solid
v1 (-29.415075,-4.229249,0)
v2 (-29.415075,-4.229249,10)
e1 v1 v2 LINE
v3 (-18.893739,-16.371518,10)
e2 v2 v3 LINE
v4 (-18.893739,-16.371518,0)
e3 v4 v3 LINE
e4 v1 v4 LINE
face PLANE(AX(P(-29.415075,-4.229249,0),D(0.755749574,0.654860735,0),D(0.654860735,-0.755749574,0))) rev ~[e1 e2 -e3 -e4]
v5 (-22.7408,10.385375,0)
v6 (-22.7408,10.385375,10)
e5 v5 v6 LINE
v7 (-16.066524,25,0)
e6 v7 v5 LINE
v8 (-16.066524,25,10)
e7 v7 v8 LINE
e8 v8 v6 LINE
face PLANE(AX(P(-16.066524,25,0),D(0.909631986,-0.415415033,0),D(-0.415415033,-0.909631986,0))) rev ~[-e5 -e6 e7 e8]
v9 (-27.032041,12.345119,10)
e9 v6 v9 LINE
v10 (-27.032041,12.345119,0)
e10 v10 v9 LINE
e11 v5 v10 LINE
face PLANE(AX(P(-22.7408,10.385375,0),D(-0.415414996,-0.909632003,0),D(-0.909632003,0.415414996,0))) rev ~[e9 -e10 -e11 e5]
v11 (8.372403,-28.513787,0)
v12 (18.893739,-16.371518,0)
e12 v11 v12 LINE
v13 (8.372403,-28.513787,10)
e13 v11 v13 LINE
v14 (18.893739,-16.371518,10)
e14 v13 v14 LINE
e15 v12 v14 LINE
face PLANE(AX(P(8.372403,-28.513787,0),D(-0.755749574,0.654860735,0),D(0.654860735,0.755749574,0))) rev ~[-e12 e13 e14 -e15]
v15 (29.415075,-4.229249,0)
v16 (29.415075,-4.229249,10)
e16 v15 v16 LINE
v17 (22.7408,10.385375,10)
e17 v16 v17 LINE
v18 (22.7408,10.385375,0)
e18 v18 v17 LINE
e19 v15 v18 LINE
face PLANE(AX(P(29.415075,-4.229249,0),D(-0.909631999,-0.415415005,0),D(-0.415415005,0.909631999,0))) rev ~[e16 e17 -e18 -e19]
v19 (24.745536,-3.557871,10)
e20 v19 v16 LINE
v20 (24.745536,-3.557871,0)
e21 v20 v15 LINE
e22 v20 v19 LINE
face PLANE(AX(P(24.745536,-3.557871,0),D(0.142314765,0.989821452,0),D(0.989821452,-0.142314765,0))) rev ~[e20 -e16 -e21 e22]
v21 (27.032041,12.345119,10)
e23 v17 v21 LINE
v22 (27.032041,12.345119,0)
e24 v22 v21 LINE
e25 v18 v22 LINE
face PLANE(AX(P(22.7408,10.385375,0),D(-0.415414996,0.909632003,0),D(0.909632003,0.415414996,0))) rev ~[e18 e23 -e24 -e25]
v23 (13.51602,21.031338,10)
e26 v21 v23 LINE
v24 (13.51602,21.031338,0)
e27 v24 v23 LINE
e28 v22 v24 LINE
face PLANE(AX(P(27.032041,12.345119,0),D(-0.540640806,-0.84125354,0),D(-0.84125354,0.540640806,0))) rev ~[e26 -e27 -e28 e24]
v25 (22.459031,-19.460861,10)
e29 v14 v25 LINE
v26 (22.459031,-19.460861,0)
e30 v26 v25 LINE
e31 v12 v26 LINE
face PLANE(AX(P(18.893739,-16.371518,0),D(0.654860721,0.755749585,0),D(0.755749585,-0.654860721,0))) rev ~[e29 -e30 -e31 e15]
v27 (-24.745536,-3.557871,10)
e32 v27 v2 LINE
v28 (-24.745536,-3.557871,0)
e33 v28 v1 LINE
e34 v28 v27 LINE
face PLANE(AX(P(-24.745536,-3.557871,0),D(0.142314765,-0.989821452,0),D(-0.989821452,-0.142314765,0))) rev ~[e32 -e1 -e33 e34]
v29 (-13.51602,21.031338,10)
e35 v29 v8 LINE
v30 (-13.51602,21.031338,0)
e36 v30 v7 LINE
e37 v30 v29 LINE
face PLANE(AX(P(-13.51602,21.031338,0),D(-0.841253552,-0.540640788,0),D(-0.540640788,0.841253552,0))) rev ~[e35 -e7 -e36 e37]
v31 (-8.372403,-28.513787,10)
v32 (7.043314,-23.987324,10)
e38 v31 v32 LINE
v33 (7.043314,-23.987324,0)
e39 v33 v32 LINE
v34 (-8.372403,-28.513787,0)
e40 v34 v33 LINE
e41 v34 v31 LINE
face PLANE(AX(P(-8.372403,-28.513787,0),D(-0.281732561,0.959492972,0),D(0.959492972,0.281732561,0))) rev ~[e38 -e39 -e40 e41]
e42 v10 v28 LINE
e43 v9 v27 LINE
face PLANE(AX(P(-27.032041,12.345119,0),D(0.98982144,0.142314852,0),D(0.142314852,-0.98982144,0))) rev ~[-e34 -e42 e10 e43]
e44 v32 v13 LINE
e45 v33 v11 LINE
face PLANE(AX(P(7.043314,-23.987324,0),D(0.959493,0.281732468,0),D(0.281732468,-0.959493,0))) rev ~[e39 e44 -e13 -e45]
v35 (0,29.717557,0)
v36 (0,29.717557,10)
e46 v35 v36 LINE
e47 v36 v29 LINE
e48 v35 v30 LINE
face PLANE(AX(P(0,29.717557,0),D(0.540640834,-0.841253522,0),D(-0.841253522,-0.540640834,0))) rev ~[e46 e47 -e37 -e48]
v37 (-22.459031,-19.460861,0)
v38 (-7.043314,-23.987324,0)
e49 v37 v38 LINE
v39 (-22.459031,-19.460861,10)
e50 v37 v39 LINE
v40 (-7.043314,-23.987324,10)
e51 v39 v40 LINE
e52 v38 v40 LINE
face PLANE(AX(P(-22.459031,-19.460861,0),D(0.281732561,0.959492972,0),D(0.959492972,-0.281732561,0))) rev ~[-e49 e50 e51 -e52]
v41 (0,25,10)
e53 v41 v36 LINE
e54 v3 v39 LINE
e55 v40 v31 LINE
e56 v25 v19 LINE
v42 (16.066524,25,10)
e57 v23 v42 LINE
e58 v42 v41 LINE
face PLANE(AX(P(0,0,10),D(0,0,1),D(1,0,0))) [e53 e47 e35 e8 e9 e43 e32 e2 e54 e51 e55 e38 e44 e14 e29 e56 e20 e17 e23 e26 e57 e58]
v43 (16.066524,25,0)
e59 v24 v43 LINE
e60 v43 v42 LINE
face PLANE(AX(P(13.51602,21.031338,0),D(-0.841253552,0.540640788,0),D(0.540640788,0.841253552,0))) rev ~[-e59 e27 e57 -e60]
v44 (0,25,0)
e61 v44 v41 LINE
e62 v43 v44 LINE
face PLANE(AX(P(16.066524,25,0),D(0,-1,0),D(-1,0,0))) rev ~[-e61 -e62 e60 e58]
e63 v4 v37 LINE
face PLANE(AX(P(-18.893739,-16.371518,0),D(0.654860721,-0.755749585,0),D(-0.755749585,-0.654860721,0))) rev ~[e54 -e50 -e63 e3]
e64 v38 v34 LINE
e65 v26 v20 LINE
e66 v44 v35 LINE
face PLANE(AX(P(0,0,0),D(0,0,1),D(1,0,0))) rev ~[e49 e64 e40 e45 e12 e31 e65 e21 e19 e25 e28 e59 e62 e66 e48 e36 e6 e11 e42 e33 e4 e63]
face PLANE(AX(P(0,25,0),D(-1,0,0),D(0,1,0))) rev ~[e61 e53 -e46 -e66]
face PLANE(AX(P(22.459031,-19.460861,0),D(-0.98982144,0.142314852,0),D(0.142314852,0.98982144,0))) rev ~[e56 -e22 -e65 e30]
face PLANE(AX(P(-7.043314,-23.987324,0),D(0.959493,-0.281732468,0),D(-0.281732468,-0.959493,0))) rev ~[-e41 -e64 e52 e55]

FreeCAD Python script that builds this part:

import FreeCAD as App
import Part
import Sketcher
from FreeCAD import Vector


def add_polygon(sketch, points):
    """Adds a closed chain of lines whose ends are joined by coincident constraints."""
    first, n = sketch.GeometryCount, len(points)
    for a, b in zip(points, points[1:] + points[:1]):
        sketch.addGeometry(Part.LineSegment(App.Vector(*a, 0), App.Vector(*b, 0)), False)
    for i in range(n):
        sketch.addConstraint(Sketcher.Constraint("Coincident", first + i, 2, first + (i + 1) % n, 1))

doc = App.newDocument("Part")
params = doc.addObject("Spreadsheet::Sheet", "Params")
for row, (alias, value) in enumerate([
    ("pad1_length", "10 mm"),
], start=1):
    params.set(f"A{row}", alias)
    params.set(f"B{row}", "=" + value)
    params.setAlias(f"B{row}", alias)

body = doc.addObject("PartDesign::Body", "Body")

sketch1 = doc.addObject("Sketcher::SketchObject", "Sketch")
body.addObject(sketch1)
sketch1.AttachmentSupport = (doc.XY_Plane, [""])
sketch1.MapMode = "FlatFace"
add_polygon(sketch1, [(22.7, 10.4), (27, 12.3), (13.5, 21), (16.1, 25), (0, 25), (0, 29.7), (-13.5, 21), (-16.1, 25), (-22.7, 10.4), (-27, 12.3), (-24.7, -3.6), (-29.4, -4.2), (-18.9, -16.4), (-22.5, -19.5), (-7, -24), (-8.4, -28.5), (7, -24), (8.4, -28.5), (18.9, -16.4), (22.5, -19.5), (24.7, -3.6), (29.4, -4.2)])
sketch1.addConstraint([
    Sketcher.Constraint("Horizontal", 3),
    Sketcher.Constraint("Vertical", 4),
    Sketcher.Constraint("Symmetric", 1, 2, 5, 2, -2),
    Sketcher.Constraint("Symmetric", 2, 2, 6, 2, -2),
    Sketcher.Constraint("Symmetric", 0, 2, 8, 2, -2),
    Sketcher.Constraint("Symmetric", 13, 2, 15, 2, -2),
    Sketcher.Constraint("Symmetric", 14, 2, 16, 2, -2),
    Sketcher.Constraint("Symmetric", 11, 2, 17, 2, -2),
    Sketcher.Constraint("Symmetric", 12, 2, 18, 2, -2),
    Sketcher.Constraint("Symmetric", 9, 2, 19, 2, -2),
    Sketcher.Constraint("Symmetric", 10, 2, 20, 2, -2),
    Sketcher.Constraint("Symmetric", 7, 2, 21, 2, -2),
    Sketcher.Constraint("PointOnObject", 3, 2, -2),
    Sketcher.Constraint("Perpendicular", 1, 2),
    Sketcher.Constraint("Perpendicular", 5, 6),
    Sketcher.Constraint("Perpendicular", 7, 8),
    Sketcher.Constraint("Perpendicular", 9, 10),
    Sketcher.Constraint("Perpendicular", 11, 12),
    Sketcher.Constraint("Perpendicular", 13, 14),
    Sketcher.Constraint("Perpendicular", 15, 16),
    Sketcher.Constraint("Perpendicular", 17, 18),
    Sketcher.Constraint("Perpendicular", 19, 20),
    Sketcher.Constraint("Perpendicular", 0, 21),
    Sketcher.Constraint("Equal", 0, 2),
    Sketcher.Constraint("Equal", 1, 5),
    Sketcher.Constraint("Equal", 7, 9),
    Sketcher.Constraint("Equal", 8, 10),
    Sketcher.Constraint("Equal", 9, 11),
    Sketcher.Constraint("Equal", 10, 12),
    Sketcher.Constraint("Equal", 11, 13),
    Sketcher.Constraint("Equal", 12, 14),
    Sketcher.Constraint("Equal", 13, 15),
    Sketcher.Constraint("DistanceY", -1, 1, 2, 2, 25.0),
    Sketcher.Constraint("DistanceX", 7, 2, -1, 1, 22.7408),
])
pad1 = doc.addObject("PartDesign::Pad", "Pad")
body.addObject(pad1)
pad1.Profile = sketch1
pad1.setExpression("Length", "Params.pad1_length")

doc.recompute()
